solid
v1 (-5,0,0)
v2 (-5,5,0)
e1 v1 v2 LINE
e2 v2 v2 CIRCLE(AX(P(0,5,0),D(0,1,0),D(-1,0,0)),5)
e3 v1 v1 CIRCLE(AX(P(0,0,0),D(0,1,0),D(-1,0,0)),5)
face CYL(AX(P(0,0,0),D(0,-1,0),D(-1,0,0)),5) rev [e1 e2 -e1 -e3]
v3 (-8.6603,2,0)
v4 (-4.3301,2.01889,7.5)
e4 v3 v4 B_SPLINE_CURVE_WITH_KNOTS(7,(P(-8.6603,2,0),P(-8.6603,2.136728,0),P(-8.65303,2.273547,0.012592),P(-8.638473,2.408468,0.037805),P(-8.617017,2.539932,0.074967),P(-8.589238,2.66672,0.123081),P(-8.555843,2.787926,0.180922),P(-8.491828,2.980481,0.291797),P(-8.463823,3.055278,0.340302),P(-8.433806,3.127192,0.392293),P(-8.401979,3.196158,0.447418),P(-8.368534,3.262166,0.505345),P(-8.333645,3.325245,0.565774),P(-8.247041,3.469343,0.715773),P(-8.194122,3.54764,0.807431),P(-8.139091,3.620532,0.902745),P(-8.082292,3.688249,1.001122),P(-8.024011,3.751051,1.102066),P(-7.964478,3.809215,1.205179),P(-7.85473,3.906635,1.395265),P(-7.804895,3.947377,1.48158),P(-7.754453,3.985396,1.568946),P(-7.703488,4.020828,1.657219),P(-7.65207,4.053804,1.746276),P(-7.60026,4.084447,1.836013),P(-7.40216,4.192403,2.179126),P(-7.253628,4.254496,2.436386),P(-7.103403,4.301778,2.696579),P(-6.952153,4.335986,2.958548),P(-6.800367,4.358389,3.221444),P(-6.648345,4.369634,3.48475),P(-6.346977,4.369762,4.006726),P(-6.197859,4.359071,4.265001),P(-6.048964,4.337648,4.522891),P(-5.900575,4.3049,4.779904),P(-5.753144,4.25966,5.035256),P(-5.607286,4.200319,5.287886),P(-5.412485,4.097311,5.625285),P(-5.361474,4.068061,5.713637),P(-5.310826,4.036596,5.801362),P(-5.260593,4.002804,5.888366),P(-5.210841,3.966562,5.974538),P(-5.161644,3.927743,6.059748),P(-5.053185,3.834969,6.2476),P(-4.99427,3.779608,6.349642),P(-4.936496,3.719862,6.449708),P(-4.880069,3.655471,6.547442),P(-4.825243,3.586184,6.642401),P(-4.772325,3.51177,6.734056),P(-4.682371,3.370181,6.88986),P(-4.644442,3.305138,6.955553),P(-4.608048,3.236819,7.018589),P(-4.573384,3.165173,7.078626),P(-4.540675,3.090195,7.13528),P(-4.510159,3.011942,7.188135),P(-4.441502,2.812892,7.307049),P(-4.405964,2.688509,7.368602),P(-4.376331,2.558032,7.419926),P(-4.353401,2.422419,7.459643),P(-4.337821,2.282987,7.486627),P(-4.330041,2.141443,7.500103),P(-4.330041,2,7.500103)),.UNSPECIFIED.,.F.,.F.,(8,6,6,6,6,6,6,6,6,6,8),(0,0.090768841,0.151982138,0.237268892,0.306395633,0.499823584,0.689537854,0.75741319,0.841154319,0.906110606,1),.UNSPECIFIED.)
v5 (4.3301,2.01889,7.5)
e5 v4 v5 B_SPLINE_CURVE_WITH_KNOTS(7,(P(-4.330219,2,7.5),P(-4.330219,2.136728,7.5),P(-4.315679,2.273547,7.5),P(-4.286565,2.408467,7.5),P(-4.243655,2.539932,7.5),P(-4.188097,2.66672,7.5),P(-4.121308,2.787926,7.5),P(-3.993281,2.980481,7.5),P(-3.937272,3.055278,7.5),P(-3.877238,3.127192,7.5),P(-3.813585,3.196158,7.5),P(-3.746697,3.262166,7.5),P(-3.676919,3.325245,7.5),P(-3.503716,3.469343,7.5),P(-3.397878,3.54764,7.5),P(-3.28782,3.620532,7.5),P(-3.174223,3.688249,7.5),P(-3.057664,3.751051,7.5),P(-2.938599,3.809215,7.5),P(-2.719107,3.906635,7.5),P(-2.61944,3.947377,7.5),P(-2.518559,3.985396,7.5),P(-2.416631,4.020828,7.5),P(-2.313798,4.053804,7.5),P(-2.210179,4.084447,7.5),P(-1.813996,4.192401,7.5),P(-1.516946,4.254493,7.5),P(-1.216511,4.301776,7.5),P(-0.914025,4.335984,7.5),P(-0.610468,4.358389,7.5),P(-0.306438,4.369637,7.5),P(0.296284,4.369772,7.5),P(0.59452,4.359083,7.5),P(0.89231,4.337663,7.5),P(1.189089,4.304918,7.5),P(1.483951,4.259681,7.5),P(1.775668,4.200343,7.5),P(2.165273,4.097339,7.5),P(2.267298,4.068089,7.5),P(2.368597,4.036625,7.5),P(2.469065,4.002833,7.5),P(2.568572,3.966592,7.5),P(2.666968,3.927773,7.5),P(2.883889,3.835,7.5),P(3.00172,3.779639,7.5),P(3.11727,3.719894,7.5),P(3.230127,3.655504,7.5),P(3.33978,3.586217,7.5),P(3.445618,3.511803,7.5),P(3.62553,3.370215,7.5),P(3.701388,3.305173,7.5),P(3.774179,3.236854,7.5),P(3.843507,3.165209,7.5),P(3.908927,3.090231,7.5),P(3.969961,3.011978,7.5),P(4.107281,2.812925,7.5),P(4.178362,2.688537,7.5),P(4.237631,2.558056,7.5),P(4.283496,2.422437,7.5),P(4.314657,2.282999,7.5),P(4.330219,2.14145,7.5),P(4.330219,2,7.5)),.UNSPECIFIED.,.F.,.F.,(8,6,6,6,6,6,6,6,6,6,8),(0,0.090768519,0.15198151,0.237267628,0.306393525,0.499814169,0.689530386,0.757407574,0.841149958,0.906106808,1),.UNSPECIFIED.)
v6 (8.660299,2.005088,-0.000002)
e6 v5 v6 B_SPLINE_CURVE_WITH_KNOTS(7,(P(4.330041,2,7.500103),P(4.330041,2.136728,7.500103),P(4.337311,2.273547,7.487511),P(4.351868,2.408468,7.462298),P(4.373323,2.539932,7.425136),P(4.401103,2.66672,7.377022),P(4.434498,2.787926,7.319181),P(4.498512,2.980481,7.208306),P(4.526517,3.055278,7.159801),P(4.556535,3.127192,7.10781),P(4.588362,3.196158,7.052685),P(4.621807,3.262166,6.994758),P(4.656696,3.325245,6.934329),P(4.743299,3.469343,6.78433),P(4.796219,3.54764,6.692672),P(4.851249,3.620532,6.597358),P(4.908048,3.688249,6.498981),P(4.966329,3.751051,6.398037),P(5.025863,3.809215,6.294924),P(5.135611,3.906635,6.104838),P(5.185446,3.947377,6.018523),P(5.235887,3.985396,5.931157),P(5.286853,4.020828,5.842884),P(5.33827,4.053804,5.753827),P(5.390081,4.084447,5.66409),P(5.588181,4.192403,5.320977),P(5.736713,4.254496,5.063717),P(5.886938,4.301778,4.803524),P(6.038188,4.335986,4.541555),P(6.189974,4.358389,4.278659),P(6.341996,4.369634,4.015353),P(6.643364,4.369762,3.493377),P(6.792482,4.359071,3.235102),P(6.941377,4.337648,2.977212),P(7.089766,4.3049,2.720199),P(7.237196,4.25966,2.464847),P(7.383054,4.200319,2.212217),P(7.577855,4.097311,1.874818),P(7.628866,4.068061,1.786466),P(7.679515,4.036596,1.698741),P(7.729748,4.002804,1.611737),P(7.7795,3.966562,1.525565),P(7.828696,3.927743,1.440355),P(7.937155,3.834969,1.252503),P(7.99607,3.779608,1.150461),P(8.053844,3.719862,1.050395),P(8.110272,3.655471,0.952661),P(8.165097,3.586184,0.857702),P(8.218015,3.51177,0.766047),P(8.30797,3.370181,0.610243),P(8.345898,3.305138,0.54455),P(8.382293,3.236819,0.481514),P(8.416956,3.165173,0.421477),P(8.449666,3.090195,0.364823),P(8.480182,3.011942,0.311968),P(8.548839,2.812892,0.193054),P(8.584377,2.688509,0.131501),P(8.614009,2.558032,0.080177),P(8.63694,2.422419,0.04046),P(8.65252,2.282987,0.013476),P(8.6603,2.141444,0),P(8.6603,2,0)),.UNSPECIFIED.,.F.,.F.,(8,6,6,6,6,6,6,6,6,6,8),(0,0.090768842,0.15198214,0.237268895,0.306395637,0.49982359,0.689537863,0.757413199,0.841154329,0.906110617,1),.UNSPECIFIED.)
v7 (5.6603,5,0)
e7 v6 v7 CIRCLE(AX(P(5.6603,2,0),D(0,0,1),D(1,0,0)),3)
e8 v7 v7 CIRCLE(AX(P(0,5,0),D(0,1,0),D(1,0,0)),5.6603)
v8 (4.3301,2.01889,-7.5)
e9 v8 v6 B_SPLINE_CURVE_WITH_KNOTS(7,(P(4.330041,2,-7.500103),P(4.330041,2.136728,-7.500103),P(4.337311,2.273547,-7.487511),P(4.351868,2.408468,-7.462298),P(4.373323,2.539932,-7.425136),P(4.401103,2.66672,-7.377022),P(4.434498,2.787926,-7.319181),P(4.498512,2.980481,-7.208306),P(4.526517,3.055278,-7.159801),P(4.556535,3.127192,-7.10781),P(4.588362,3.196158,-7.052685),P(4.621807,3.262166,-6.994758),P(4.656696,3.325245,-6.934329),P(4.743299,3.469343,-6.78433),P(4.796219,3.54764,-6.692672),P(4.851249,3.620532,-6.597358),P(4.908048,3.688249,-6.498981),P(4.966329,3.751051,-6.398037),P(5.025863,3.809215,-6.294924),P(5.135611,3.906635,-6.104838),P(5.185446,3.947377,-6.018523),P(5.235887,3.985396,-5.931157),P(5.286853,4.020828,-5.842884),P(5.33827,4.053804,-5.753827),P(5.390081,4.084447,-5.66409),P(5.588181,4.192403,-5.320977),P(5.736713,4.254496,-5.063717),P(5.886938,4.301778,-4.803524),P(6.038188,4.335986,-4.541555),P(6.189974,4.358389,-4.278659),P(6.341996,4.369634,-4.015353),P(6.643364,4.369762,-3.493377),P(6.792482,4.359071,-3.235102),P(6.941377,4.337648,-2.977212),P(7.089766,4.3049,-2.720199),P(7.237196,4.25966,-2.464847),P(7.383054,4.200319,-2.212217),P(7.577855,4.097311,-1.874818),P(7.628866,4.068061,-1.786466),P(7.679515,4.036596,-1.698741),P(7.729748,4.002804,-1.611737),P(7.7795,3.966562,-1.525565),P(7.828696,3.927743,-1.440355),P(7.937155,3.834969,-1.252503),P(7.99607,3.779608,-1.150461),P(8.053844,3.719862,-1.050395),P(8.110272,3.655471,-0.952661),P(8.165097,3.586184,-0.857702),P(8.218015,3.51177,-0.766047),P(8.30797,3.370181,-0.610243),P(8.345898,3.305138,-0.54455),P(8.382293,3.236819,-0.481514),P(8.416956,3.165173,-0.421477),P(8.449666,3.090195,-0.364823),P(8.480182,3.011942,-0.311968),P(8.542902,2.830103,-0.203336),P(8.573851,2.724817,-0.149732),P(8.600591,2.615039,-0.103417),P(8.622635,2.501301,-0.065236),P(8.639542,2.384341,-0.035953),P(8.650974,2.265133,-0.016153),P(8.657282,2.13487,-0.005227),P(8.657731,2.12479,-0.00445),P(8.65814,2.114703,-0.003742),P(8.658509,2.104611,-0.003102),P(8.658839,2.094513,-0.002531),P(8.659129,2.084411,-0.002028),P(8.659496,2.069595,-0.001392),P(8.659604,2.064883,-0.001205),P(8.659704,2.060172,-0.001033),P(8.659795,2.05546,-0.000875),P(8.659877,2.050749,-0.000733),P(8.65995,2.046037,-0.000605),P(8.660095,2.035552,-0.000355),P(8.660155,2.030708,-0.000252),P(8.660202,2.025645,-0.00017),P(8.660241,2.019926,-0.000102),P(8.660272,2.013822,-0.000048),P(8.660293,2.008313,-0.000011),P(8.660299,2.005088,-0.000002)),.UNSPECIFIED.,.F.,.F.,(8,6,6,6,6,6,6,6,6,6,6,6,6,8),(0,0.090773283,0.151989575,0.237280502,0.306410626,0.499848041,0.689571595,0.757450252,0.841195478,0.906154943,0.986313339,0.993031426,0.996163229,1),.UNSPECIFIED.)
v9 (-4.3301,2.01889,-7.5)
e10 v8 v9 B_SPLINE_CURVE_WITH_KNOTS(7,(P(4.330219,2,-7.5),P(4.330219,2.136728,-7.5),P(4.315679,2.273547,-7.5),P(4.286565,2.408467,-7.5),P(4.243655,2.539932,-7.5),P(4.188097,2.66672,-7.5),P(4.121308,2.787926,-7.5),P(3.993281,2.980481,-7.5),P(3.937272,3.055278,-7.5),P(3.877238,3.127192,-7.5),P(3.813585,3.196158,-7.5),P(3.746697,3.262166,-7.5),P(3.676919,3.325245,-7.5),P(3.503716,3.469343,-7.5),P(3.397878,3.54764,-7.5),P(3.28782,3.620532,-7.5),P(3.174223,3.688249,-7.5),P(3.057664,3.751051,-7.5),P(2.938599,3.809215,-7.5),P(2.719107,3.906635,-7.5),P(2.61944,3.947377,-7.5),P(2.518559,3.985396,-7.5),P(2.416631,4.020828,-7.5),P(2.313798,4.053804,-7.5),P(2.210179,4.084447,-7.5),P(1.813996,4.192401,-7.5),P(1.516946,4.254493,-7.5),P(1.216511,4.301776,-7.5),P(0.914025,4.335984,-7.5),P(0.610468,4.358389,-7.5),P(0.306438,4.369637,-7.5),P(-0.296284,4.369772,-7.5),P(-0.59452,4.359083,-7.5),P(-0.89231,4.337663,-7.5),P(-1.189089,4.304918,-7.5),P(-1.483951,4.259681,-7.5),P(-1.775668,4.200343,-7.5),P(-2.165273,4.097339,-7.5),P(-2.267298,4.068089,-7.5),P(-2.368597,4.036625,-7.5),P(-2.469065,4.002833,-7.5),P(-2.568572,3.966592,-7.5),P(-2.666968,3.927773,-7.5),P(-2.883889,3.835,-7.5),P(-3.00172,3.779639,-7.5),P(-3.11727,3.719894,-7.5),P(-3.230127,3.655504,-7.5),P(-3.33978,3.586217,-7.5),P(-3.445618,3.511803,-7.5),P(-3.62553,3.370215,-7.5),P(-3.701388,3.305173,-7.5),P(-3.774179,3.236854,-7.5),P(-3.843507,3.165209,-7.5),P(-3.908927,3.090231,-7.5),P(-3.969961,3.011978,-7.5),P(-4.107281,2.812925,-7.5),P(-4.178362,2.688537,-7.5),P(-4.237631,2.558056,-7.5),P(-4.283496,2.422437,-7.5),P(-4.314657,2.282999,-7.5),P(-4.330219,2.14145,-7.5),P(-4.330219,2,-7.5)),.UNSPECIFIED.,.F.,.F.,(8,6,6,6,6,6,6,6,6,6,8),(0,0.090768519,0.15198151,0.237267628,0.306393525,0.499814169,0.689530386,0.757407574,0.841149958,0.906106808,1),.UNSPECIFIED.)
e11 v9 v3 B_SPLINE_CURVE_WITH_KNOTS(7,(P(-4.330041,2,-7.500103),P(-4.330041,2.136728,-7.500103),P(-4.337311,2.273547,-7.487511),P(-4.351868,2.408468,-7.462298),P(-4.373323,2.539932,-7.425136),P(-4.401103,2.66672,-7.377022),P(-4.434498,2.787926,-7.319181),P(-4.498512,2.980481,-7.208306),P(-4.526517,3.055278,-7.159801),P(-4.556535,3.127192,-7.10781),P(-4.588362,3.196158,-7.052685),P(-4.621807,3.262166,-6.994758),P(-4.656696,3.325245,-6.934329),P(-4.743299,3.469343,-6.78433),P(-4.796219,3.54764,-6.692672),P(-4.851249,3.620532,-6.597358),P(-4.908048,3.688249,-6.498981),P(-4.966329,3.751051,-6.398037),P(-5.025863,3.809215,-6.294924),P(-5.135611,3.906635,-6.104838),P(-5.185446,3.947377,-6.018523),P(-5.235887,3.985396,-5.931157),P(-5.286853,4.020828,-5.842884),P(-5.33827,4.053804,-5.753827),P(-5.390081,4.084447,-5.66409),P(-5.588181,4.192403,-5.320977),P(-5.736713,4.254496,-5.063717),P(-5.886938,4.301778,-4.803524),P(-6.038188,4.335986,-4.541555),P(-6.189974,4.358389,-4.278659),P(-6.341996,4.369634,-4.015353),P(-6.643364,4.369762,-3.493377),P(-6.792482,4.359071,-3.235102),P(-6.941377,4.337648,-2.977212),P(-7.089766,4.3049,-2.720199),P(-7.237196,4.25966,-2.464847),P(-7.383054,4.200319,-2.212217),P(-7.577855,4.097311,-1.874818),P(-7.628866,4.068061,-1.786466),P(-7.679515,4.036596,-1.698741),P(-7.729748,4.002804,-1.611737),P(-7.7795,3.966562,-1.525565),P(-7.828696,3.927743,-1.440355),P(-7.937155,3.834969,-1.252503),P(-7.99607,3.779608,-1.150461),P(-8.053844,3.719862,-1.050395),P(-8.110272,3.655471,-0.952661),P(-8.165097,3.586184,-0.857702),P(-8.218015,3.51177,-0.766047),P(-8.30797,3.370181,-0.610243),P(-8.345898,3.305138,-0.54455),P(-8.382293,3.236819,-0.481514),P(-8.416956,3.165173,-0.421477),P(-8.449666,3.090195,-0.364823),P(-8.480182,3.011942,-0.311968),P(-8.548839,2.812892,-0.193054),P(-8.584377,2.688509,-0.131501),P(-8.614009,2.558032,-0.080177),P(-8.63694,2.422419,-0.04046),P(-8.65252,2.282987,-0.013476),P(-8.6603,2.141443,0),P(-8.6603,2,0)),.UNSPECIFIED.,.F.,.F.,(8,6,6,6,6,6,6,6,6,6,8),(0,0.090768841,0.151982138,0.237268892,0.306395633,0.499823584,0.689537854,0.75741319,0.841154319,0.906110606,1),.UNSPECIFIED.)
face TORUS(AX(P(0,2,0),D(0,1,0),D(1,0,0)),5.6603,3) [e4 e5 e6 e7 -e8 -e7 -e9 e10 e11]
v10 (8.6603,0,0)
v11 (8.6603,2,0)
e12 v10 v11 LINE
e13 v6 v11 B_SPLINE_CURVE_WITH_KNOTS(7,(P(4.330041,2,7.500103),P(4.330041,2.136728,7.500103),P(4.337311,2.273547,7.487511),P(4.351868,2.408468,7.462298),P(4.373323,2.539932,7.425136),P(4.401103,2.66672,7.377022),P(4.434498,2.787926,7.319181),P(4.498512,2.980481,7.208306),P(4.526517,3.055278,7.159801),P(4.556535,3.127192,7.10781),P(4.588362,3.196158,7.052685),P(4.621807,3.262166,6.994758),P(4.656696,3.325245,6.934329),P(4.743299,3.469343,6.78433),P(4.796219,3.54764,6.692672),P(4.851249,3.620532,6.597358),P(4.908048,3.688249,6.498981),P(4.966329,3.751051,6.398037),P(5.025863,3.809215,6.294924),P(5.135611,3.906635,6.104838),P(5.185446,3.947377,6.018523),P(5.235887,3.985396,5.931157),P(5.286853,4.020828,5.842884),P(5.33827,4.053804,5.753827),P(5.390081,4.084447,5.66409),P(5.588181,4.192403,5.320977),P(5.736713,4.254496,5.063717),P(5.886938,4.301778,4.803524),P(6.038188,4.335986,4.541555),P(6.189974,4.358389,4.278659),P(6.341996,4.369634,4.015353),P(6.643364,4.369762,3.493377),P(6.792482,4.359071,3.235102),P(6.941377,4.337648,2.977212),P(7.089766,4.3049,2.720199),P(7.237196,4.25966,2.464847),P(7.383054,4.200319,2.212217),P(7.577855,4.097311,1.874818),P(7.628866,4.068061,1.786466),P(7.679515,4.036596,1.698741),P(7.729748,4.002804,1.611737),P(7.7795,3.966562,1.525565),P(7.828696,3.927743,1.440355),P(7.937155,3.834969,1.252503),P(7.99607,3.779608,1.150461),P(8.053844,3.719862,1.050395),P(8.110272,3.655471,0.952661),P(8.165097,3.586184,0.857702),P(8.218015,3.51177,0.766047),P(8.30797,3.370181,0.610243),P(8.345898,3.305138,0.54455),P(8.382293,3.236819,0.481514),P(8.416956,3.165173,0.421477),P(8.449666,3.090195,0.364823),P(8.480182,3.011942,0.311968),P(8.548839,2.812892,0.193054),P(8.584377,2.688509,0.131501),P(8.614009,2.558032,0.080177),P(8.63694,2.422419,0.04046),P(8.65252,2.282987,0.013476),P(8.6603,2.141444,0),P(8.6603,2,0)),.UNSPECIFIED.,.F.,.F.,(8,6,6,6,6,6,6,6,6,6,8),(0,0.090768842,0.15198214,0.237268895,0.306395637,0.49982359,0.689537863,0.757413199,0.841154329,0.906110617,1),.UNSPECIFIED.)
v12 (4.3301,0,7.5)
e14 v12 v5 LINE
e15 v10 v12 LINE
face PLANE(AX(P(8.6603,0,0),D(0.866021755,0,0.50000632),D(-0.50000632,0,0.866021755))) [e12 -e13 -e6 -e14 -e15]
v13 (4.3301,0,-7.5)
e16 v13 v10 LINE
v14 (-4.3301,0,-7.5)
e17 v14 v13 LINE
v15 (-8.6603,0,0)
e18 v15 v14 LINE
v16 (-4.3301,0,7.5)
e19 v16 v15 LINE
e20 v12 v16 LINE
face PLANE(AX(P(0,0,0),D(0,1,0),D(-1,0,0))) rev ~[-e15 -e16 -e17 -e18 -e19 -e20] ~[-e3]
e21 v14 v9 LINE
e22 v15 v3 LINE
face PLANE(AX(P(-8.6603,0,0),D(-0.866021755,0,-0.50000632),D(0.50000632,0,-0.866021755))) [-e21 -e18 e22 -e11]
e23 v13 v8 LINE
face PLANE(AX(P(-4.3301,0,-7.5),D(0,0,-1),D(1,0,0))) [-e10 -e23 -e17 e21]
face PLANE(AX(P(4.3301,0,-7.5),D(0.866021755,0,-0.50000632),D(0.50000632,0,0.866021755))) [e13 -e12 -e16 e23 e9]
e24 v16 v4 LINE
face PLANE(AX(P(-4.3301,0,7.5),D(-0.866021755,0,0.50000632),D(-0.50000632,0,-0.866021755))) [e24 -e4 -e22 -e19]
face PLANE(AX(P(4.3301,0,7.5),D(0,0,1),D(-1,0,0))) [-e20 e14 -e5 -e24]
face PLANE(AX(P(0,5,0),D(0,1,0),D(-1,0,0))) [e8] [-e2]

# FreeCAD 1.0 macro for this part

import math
import FreeCAD as App
import Part
import Sketcher
from FreeCAD import Vector
Q = App.Units.Quantity

doc = App.newDocument("Part")
body = doc.addObject("PartDesign::Body", "Body")

# Sketch on XZ plane
sketch1 = body.newObject("Sketcher::SketchObject", "Sketch")
sketch1.AttachmentSupport = (doc.getObject("XZ_Plane"), [""])
sketch1.MapMode = "FlatFace"
sketch1.addGeometry([
    Part.LineSegment(Vector(4, 8, 0), Vector(9, 0, 0)),  # 0
    Part.LineSegment(Vector(9, 0, 0), Vector(4, -8, 0)),  # 1
    Part.LineSegment(Vector(4, -8, 0), Vector(-4, -8, 0)),  # 2
    Part.LineSegment(Vector(-4, -8, 0), Vector(-9, 0, 0)),  # 3
    Part.LineSegment(Vector(-9, 0, 0), Vector(-4, 8, 0)),  # 4
    Part.LineSegment(Vector(-4, 8, 0), Vector(4, 8, 0)),  # 5
    Part.Circle(Vector(0, 0, 0), Vector(0, 0, 1), 5),  # 6
], False)
sketch1.addConstraint([
    Sketcher.Constraint("Coincident", 0, 2, 1, 1),
    Sketcher.Constraint("Coincident", 1, 2, 2, 1),
    Sketcher.Constraint("Coincident", 2, 2, 3, 1),
    Sketcher.Constraint("Coincident", 3, 2, 4, 1),
    Sketcher.Constraint("Coincident", 4, 2, 5, 1),
    Sketcher.Constraint("Coincident", 5, 2, 0, 1),
    Sketcher.Constraint("Horizontal", 2),
    Sketcher.Constraint("Horizontal", 5),
    Sketcher.Constraint("Coincident", 6, 3, -1, 1),
    Sketcher.Constraint("Symmetric", 0, 2, 3, 2, -1, 1),
    Sketcher.Constraint("Symmetric", 1, 2, 4, 2, -1, 1),
    Sketcher.Constraint("PointOnObject", 0, 2, -1),
    Sketcher.Constraint("Parallel", 0, 3),
    Sketcher.Constraint("Vertical", 2, 2, 4, 2),
    Sketcher.Constraint("Diameter", 6, Q("10 mm")),
    Sketcher.Constraint("DistanceY", 2, 2, 4, 2, Q("15 mm")),
    Sketcher.Constraint("Angle", 0, Q("-59.9996 deg")),
    Sketcher.Constraint("DistanceX", -1, 1, 1, 2, Q("4.33 mm")),
])
pad1 = body.newObject("PartDesign::Pad", "Pad")
pad1.Profile = sketch1
pad1.Length = 5
pad1.Reversed = True

# Sketch on XY plane
sketch2 = body.newObject("Sketcher::SketchObject", "Sketch001")
sketch2.AttachmentSupport = (doc.getObject("XY_Plane"), [""])
sketch2.MapMode = "FlatFace"
sketch2.addGeometry([
    Part.LineSegment(Vector(8.7, 2, 0), Vector(8.7, 5, 0)),
    Part.LineSegment(Vector(8.7, 5, 0), Vector(5.7, 5, 0)),
    Part.ArcOfCircle(Part.Circle(Vector(5.7, 2, 0), Vector(0, 0, 1), 3), math.radians(0), math.radians(90)),
], False)
sketch2.addConstraint([
    Sketcher.Constraint("Coincident", 0, 2, 1, 1),
    Sketcher.Constraint("Tangent", 1, 2, 2, 2),
    Sketcher.Constraint("Tangent", 2, 1, 0, 1),
    Sketcher.Constraint("Vertical", 0),
    Sketcher.Constraint("Horizontal", 1),
    Sketcher.Constraint("Radius", 2, Q("3 mm")),
    Sketcher.Constraint("DistanceY", -1, 1, 2, 3, Q("2 mm")),
    Sketcher.Constraint("DistanceX", -1, 1, 2, 3, Q("5.6603 mm")),
])
groove = body.newObject("PartDesign::Groove", "Groove")
groove.Profile = sketch2
groove.ReferenceAxis = (sketch2, ["V_Axis"])
groove.Angle = 360

doc.recompute()
